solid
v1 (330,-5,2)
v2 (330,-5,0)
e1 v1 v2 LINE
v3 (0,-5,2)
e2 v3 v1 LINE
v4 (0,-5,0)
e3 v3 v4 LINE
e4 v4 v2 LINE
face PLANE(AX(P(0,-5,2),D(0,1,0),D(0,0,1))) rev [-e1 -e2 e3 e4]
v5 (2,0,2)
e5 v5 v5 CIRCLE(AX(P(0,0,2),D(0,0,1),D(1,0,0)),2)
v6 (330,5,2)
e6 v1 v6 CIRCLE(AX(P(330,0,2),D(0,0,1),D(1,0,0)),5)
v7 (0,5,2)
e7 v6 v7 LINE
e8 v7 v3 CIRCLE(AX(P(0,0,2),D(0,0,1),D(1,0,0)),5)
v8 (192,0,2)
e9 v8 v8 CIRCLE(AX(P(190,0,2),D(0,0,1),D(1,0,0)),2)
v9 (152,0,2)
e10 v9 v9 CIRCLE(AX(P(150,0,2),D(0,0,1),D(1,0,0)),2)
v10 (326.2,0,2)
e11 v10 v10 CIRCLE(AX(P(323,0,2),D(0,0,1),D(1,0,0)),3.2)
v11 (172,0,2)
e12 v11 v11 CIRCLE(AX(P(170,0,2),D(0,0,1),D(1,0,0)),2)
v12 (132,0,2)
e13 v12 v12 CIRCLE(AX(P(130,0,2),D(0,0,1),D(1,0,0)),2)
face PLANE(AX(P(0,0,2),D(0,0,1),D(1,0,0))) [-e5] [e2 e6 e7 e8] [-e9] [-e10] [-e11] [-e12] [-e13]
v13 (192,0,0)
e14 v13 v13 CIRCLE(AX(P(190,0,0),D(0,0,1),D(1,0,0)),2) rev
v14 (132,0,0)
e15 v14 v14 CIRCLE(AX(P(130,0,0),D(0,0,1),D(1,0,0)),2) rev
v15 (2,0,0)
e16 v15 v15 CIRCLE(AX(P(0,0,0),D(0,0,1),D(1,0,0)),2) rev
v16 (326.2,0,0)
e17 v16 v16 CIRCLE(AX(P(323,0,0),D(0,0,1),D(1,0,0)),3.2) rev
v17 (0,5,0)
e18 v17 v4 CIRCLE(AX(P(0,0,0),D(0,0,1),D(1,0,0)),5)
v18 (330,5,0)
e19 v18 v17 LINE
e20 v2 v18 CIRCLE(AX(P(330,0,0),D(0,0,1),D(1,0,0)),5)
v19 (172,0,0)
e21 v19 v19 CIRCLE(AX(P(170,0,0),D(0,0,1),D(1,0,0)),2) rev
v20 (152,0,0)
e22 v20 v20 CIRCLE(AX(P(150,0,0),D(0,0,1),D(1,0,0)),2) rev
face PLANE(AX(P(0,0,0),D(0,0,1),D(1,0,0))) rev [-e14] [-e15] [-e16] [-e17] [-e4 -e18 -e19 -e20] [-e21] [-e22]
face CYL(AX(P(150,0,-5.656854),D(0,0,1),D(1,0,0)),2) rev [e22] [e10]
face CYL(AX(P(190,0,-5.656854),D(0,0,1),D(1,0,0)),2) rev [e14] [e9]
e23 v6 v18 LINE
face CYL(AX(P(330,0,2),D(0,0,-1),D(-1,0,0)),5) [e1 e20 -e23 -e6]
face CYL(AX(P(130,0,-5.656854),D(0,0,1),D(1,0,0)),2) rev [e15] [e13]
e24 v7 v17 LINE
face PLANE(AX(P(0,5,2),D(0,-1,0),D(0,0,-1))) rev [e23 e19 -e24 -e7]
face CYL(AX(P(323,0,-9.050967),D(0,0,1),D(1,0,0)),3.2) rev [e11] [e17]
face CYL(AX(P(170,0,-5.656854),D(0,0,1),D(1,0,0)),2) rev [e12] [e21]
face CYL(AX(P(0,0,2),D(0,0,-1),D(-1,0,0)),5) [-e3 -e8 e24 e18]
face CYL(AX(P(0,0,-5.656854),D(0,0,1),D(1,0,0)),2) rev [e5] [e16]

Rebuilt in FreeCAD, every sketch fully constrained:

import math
import FreeCAD as App
import Part
import Sketcher
Q = App.Units.Quantity

doc = App.newDocument("Part")
params = doc.addObject("Spreadsheet::Sheet", "Params")
for row, (alias, value) in enumerate([
    ("sketch1_radius", "5 mm"),
    ("sketch1_width", "330 mm"),
    ("pad1_length", "2 mm"),
    ("sketch2_diameter", "6.4 mm"),
    ("pocket1_length", "2 mm"),
    ("sketch3_diameter", "4 mm"),
    ("pocket2_length", "2 mm"),
    ("sketch4_diameter", "4 mm"),
    ("pocket3_length", "2 mm"),
], start=1):
    params.set(f"A{row}", alias)
    params.set(f"B{row}", "=" + value)
    params.setAlias(f"B{row}", alias)

body = doc.addObject("PartDesign::Body", "Body")

# Sketch on XY plane
sketch1 = body.newObject("Sketcher::SketchObject", "Sketch")
sketch1.AttachmentSupport = (doc.getObject("XY_Plane"), [""])
sketch1.MapMode = "FlatFace"
sketch1.addGeometry([
    Part.LineSegment(App.Vector(330, 5, 0), App.Vector(0, 5, 0)),
    Part.ArcOfCircle(Part.Circle(App.Vector(0, 0, 0), App.Vector(0, 0, 1), 5), math.radians(90), math.radians(270)),
    Part.LineSegment(App.Vector(0, -5, 0), App.Vector(330, -5, 0)),
    Part.ArcOfCircle(Part.Circle(App.Vector(330, 0, 0), App.Vector(0, 0, 1), 5), math.radians(-90), math.radians(90)),
], False)
sketch1.addConstraint([
    Sketcher.Constraint("Tangent", 0, 2, 1, 1),
    Sketcher.Constraint("Tangent", 1, 2, 2, 1),
    Sketcher.Constraint("Tangent", 2, 2, 3, 1),
    Sketcher.Constraint("Tangent", 3, 2, 0, 1),
    Sketcher.Constraint("Horizontal", 0),
    Sketcher.Constraint("Horizontal", 2),
    Sketcher.Constraint("Coincident", 1, 3, -1, 1),
    Sketcher.Constraint("Radius", 1, Q("5 mm")),
    Sketcher.Constraint("DistanceX", 0, 2, 0, 1, Q("330 mm")),
])
sketch1.setExpression("Constraints[7]", "Params.sketch1_radius")
sketch1.setExpression("Constraints[8]", "Params.sketch1_width")
pad1 = body.newObject("PartDesign::Pad", "Pad")
pad1.Profile = sketch1
pad1.setExpression("Length", "Params.pad1_length")

# Sketch on XY plane
sketch2 = body.newObject("Sketcher::SketchObject", "Sketch001")
sketch2.AttachmentSupport = (doc.getObject("XY_Plane"), [""])
sketch2.MapMode = "FlatFace"
sketch2.AttachmentOffset = App.Placement(App.Vector(0, 0, 2), App.Rotation())
sketch2.addGeometry(Part.Circle(App.Vector(323, 0, 0), App.Vector(0, 0, 1), 3.2), False)
sketch2.addConstraint([
    Sketcher.Constraint("PointOnObject", 0, 3, -1),
    Sketcher.Constraint("Diameter", 0, Q("6.4 mm")),
    Sketcher.Constraint("DistanceX", -1, 1, 0, 3, Q("323 mm")),
])
sketch2.setExpression("Constraints[1]", "Params.sketch2_diameter")
pocket1 = body.newObject("PartDesign::Pocket", "Pocket")
pocket1.Profile = sketch2
pocket1.setExpression("Length", "Params.pocket1_length")

# Sketch on XY plane
sketch3 = body.newObject("Sketcher::SketchObject", "Sketch002")
sketch3.AttachmentSupport = (doc.getObject("XY_Plane"), [""])
sketch3.MapMode = "FlatFace"
sketch3.AttachmentOffset = App.Placement(App.Vector(0, 0, 2), App.Rotation())
sketch3.addGeometry([
    Part.Circle(App.Vector(190, 0, 0), App.Vector(0, 0, 1), 2),
    Part.Circle(App.Vector(170, 0, 0), App.Vector(0, 0, 1), 2),
    Part.Circle(App.Vector(150, 0, 0), App.Vector(0, 0, 1), 2),
    Part.Circle(App.Vector(130, 0, 0), App.Vector(0, 0, 1), 2),
], False)
sketch3.addConstraint([
    Sketcher.Constraint("Equal", 0, 1),
    Sketcher.Constraint("Equal", 1, 2),
    Sketcher.Constraint("Equal", 2, 3),
    Sketcher.Constraint("PointOnObject", 0, 3, -1),
    Sketcher.Constraint("PointOnObject", 1, 3, -1),
    Sketcher.Constraint("PointOnObject", 2, 3, -1),
    Sketcher.Constraint("PointOnObject", 3, 3, -1),
    Sketcher.Constraint("Diameter", 0, Q("4 mm")),
    Sketcher.Constraint("DistanceX", -1, 1, 0, 3, Q("190 mm")),
    Sketcher.Constraint("DistanceX", -1, 1, 1, 3, Q("170 mm")),
    Sketcher.Constraint("DistanceX", -1, 1, 2, 3, Q("150 mm")),
    Sketcher.Constraint("DistanceX", -1, 1, 3, 3, Q("130 mm")),
])
sketch3.setExpression("Constraints[7]", "Params.sketch3_diameter")
pocket2 = body.newObject("PartDesign::Pocket", "Pocket001")
pocket2.Profile = sketch3
pocket2.setExpression("Length", "Params.pocket2_length")

# Sketch on XY plane
sketch4 = body.newObject("Sketcher::SketchObject", "Sketch003")
sketch4.AttachmentSupport = (doc.getObject("XY_Plane"), [""])
sketch4.MapMode = "FlatFace"
sketch4.AttachmentOffset = App.Placement(App.Vector(0, 0, 2), App.Rotation())
sketch4.addGeometry(Part.Circle(App.Vector(0, 0, 0), App.Vector(0, 0, 1), 2), False)
sketch4.addConstraint([
    Sketcher.Constraint("Coincident", 0, 3, -1, 1),
    Sketcher.Constraint("Diameter", 0, Q("4 mm")),
])
sketch4.setExpression("Constraints[1]", "Params.sketch4_diameter")
pocket3 = body.newObject("PartDesign::Pocket", "Pocket002")
pocket3.Profile = sketch4
pocket3.setExpression("Length", "Params.pocket3_length")

doc.recompute()
